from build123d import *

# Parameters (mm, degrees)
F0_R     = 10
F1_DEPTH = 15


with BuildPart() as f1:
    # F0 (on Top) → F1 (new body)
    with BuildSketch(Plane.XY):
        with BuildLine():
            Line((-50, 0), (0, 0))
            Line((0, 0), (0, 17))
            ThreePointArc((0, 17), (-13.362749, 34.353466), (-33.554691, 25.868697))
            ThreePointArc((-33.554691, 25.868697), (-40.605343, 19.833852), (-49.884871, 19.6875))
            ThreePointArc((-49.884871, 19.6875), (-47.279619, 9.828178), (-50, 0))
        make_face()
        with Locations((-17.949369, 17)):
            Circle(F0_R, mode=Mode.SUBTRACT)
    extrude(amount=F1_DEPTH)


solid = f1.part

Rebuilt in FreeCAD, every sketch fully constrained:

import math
import FreeCAD as App
import Part
import Sketcher

V = App.Vector

doc = App.newDocument("Part")
body = doc.addObject("PartDesign::Body", "Body")

# Sketch on XY plane
sketch1 = body.newObject("Sketcher::SketchObject", "Sketch")
sketch1.AttachmentSupport = (doc.getObject("XY_Plane"), [""])
sketch1.MapMode = "FlatFace"
sketch1.addGeometry([
    Part.LineSegment(V(-50, 0, 0), V(0, 0, 0)),  # 0
    Part.LineSegment(V(0, 0, 0), V(0, 17, 0)),  # 1
    Part.ArcOfCircle(Part.Circle(V(-18, 17, 0), V(0, 0, 1), 18), math.radians(0), math.radians(150)),  # 2
    Part.ArcOfCircle(Part.Circle(V(-45, 33, 0), V(0, 0, 1), 14), math.radians(-109), math.radians(-30)),  # 3
    Part.ArcOfCircle(Part.Circle(V(-67, 10, 0), V(0, 0, 1), 20), math.radians(-31), math.radians(30)),  # 4
    Part.Circle(V(-18, 17, 0), V(0, 0, 1), 10),  # 5
], False)
sketch1.addConstraint([
    Sketcher.Constraint("Coincident", 0, 2, 1, 1),
    Sketcher.Constraint("Tangent", 1, 2, 2, 1),
    Sketcher.Constraint("Tangent", 2, 2, 3, 2),
    Sketcher.Constraint("Coincident", 3, 1, 4, 2),
    Sketcher.Constraint("Coincident", 4, 1, 0, 1),
    Sketcher.Constraint("Horizontal", 0),
    Sketcher.Constraint("Vertical", 1),
    Sketcher.Constraint("Coincident", 0, 2, -1, 1),
    Sketcher.Constraint("Coincident", 5, 3, 2, 3),
    Sketcher.Constraint("Diameter", 5, 20.0),
    Sketcher.Constraint("DistanceX", 0, 1, 0, 2, 50.0),
    Sketcher.Constraint("DistanceY", 1, 1, 1, 2, 17.0),
    Sketcher.Constraint("Radius", 2, 17.949369),
    Sketcher.Constraint("Radius", 3, 13.679829),
    Sketcher.Constraint("Radius", 4, 19.526652),
    Sketcher.Constraint("DistanceY", -1, 1, 3, 1, 19.6875),
    Sketcher.Constraint("DistanceX", 3, 1, 2, 3, 31.935502),
])
pad1 = body.newObject("PartDesign::Pad", "Pad")
pad1.Profile = sketch1
pad1.Length = 15

doc.recompute()
